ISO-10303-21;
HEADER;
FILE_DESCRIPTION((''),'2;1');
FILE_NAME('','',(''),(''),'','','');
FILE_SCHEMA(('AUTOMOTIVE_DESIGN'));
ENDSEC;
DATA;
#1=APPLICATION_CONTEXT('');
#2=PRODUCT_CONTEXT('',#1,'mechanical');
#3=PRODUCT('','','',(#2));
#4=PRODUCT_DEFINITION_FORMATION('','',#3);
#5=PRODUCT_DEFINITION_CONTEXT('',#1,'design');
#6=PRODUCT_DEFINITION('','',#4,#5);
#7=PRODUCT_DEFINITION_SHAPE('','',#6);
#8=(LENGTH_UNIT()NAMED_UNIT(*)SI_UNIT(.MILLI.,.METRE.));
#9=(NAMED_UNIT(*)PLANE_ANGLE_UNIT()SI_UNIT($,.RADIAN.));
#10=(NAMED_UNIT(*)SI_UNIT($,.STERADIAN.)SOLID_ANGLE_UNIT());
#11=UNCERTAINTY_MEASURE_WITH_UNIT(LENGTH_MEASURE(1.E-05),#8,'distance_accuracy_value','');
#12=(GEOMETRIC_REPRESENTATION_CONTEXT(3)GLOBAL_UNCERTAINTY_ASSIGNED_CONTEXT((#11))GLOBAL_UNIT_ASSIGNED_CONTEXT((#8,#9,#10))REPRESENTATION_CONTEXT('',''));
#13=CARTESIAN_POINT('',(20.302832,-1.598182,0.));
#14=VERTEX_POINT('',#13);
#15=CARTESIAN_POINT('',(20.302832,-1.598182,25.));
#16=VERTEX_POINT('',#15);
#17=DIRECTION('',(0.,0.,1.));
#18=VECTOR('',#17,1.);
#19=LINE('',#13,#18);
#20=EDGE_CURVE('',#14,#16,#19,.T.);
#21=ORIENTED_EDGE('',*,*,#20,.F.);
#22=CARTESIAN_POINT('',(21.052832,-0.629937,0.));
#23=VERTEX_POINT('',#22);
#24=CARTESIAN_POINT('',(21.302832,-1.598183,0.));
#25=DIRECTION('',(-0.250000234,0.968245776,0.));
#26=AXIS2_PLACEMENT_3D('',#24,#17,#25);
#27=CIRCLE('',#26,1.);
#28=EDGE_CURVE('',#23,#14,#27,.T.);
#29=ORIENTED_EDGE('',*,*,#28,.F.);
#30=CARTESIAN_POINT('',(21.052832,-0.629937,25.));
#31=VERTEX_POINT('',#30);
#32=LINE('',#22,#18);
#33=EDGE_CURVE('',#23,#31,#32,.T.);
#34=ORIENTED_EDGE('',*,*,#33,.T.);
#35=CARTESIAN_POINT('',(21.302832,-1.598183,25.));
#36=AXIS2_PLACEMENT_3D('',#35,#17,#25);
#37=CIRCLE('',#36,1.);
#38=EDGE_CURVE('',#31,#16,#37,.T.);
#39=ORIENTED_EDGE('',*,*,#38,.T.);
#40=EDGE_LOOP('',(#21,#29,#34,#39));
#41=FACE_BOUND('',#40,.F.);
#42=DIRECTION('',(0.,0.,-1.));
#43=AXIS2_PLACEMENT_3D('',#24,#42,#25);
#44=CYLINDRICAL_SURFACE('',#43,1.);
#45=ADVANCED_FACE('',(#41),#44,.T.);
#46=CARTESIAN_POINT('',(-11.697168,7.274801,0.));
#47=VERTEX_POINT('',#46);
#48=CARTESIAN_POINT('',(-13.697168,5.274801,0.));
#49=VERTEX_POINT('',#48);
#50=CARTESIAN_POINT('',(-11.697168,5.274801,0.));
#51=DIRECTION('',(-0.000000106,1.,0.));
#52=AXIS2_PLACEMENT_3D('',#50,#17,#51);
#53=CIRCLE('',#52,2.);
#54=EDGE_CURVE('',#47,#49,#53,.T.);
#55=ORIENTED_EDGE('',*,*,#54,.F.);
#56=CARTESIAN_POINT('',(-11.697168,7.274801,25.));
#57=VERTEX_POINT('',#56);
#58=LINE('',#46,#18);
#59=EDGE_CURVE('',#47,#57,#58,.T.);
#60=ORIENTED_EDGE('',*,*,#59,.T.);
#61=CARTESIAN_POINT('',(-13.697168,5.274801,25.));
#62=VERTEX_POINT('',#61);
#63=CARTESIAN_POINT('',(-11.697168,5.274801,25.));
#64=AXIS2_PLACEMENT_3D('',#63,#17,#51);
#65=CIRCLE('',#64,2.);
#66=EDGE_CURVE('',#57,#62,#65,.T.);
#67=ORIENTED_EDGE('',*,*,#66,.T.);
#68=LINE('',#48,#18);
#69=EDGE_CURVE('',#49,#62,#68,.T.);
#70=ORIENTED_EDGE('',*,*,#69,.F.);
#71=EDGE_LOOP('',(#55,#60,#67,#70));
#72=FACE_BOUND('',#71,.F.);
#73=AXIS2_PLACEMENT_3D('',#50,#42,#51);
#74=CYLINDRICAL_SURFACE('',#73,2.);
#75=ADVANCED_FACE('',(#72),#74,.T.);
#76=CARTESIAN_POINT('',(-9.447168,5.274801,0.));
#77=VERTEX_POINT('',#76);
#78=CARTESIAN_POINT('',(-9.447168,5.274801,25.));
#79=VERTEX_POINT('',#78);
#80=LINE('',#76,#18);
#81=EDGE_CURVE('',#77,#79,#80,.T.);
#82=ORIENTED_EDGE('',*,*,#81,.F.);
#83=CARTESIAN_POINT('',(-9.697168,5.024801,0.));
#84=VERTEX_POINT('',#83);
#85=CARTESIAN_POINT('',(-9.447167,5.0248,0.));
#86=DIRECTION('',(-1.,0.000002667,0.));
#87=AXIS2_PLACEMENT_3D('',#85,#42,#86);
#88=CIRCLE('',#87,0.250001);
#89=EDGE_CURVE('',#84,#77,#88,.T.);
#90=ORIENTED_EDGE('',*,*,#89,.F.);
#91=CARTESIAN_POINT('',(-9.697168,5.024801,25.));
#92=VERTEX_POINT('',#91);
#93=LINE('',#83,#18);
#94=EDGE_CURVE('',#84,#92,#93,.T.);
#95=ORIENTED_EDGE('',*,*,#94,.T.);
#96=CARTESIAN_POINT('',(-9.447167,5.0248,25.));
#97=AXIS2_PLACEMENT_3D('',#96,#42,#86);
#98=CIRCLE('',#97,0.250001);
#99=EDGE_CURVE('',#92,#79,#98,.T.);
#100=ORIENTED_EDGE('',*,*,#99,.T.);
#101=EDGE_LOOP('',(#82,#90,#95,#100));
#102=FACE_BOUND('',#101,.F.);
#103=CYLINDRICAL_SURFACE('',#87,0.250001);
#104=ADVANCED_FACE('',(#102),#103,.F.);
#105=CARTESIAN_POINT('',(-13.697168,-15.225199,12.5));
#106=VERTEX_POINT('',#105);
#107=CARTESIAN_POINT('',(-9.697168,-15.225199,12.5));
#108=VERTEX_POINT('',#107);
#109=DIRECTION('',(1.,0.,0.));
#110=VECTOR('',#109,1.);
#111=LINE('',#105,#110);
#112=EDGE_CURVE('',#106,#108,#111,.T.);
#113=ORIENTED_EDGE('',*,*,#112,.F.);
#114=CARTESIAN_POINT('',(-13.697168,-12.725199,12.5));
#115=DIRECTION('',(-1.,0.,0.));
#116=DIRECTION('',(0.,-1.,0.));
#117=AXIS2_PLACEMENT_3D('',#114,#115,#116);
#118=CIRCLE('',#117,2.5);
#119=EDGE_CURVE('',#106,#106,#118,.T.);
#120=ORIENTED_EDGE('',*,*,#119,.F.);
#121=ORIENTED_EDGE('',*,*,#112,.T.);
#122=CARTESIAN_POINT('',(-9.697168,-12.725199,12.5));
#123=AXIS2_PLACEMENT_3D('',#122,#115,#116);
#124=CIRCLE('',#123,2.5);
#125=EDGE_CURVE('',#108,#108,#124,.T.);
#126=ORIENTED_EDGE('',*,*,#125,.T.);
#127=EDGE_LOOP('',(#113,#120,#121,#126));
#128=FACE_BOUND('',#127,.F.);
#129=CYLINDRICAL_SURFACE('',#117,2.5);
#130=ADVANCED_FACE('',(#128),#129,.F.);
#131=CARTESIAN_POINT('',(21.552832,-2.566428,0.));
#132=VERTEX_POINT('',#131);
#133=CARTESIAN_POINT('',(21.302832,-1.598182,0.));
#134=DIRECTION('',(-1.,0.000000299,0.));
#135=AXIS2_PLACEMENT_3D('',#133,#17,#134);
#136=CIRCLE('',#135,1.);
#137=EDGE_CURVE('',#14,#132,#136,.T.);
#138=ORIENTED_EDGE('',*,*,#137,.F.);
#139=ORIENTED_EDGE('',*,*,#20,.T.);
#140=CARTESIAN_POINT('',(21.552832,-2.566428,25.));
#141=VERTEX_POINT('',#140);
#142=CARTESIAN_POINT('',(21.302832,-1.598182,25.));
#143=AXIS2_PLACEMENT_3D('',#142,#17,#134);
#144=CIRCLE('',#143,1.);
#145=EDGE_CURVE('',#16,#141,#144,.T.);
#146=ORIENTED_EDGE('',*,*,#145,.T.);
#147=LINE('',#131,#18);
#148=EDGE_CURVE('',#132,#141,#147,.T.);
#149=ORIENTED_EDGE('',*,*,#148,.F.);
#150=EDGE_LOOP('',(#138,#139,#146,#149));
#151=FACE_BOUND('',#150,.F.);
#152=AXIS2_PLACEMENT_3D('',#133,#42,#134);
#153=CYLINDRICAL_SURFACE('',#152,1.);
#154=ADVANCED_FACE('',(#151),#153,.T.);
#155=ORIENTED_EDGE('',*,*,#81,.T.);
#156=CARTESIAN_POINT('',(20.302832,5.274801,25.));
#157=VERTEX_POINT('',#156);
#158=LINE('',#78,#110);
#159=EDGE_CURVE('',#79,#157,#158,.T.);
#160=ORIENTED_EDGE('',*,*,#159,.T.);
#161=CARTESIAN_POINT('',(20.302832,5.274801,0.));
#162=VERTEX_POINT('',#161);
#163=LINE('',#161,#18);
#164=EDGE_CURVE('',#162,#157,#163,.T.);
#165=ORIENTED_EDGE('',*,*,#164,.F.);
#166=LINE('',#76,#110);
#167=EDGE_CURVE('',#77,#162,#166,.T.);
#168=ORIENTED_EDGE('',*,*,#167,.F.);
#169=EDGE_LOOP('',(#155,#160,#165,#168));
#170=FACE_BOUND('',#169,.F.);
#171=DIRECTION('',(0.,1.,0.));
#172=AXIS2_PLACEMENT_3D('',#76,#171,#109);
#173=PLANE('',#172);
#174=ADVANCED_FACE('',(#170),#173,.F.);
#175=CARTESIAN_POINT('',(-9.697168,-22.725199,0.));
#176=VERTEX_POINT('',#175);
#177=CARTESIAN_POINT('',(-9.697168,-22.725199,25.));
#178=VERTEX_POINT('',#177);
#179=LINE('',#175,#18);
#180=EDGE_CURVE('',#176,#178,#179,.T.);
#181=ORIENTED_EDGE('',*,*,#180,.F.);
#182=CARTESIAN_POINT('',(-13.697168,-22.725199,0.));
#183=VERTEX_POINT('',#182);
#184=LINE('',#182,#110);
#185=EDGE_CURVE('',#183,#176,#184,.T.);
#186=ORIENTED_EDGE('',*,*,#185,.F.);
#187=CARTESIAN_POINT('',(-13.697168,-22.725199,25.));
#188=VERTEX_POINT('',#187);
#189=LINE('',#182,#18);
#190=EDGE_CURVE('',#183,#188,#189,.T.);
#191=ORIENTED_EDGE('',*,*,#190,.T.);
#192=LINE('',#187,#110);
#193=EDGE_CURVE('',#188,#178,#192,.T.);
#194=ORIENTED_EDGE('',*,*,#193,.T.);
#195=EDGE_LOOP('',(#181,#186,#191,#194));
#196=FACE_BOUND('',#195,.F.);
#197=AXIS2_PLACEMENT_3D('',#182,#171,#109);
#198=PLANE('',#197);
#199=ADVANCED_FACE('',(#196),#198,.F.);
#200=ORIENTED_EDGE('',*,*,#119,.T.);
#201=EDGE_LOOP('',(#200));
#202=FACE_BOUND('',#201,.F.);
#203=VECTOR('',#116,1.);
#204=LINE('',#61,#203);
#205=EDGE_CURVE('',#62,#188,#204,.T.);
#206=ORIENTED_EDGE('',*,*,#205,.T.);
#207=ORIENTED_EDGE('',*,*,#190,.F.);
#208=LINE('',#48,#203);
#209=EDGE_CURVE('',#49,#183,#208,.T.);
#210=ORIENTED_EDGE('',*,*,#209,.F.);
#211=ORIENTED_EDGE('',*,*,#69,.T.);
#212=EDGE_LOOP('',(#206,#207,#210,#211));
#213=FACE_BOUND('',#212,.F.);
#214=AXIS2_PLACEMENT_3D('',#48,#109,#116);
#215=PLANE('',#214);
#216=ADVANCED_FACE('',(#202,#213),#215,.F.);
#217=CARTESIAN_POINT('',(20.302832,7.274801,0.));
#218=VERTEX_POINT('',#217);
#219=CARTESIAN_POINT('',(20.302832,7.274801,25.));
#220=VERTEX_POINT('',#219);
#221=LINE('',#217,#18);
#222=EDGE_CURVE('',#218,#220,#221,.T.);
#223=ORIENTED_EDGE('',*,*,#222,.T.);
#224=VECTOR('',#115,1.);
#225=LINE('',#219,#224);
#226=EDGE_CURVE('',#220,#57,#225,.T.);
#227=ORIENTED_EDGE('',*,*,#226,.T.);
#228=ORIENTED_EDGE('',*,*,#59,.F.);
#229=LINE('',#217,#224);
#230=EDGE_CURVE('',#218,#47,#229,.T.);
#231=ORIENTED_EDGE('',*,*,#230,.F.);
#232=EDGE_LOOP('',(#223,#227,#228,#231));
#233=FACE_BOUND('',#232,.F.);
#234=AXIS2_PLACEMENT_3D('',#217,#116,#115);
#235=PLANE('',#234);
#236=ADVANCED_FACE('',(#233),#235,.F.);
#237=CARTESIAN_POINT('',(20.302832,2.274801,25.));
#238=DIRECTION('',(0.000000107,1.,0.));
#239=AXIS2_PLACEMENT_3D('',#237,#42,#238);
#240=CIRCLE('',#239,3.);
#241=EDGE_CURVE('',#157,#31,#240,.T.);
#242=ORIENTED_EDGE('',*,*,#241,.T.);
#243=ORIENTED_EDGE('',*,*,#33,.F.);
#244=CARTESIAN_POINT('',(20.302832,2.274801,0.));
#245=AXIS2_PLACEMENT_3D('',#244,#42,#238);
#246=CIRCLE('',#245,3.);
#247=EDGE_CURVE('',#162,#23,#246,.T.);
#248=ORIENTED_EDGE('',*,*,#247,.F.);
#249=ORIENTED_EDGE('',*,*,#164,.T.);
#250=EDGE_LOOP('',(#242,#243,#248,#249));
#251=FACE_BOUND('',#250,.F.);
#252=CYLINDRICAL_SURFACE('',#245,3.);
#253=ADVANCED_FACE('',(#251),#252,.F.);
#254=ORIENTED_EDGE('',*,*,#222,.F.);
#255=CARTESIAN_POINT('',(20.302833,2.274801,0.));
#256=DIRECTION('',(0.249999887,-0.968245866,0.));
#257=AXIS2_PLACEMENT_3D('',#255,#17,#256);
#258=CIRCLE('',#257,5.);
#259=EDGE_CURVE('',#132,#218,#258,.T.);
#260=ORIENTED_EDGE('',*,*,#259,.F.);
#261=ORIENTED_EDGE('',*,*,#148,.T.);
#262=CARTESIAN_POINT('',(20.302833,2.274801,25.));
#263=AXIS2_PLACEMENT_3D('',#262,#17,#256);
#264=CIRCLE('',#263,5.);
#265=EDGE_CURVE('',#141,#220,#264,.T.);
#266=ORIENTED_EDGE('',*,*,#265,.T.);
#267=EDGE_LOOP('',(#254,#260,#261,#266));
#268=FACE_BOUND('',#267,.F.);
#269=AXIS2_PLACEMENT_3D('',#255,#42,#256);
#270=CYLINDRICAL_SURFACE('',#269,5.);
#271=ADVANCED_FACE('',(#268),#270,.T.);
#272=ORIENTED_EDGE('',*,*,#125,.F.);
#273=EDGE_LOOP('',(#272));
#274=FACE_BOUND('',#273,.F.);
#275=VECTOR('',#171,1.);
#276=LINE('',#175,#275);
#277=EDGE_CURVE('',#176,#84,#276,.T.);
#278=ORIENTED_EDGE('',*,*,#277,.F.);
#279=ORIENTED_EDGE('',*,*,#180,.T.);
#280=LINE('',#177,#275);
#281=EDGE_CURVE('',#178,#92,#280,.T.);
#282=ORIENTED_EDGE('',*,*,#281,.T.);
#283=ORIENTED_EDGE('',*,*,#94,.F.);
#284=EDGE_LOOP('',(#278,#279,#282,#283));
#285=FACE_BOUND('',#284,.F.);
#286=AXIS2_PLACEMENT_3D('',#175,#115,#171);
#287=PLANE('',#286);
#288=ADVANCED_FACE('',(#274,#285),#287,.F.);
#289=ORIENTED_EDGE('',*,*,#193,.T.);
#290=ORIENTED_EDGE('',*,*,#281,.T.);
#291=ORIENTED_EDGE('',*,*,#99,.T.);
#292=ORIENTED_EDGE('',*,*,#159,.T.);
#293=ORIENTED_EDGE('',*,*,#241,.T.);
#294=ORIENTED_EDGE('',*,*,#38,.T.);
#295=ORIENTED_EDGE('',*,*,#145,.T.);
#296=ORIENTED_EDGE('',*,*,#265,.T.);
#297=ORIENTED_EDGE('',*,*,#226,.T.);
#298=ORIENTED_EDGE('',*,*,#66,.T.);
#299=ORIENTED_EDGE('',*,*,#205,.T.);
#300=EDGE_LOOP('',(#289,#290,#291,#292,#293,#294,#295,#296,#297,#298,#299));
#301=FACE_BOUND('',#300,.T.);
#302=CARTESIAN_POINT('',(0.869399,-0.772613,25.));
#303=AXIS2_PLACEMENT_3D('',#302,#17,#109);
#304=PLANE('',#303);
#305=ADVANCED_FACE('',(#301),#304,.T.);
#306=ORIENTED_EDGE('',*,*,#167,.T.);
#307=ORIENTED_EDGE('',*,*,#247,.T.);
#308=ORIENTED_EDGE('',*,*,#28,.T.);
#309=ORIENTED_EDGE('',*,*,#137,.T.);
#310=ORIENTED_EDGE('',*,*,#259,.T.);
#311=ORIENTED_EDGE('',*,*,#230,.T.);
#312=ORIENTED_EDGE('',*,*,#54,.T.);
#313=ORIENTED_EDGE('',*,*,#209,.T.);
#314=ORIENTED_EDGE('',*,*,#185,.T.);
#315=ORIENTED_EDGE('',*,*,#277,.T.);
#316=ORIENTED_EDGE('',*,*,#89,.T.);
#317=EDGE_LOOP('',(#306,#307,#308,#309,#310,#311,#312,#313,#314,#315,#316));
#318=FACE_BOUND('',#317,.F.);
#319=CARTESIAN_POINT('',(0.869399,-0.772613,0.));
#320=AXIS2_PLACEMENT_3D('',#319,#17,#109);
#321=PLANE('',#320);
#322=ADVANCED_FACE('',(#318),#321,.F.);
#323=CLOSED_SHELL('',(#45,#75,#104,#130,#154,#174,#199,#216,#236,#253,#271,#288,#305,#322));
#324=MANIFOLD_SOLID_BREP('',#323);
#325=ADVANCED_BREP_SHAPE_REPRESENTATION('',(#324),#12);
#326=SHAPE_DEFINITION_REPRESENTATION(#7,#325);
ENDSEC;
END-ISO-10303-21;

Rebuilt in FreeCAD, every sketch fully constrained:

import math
import FreeCAD as App
import Part
import Sketcher

V = App.Vector

doc = App.newDocument("Part")
body = doc.addObject("PartDesign::Body", "Body")

# Sketch on XY plane
sketch1 = body.newObject("Sketcher::SketchObject", "Sketch")
sketch1.AttachmentSupport = (doc.getObject("XY_Plane"), [""])
sketch1.MapMode = "FlatFace"
sketch1.addGeometry([
    Part.ArcOfCircle(Part.Circle(V(-11.7, 5.27, 0), V(0, 0, 1), 2), math.radians(90), math.radians(180)),  # 0
    Part.LineSegment(V(-13.7, 5.27, 0), V(-13.7, -22.73, 0)),  # 1
    Part.LineSegment(V(-13.7, -22.73, 0), V(-9.7, -22.73, 0)),  # 2
    Part.LineSegment(V(-9.7, -22.73, 0), V(-9.7, 5.02, 0)),  # 3
    Part.ArcOfCircle(Part.Circle(V(-9.45, 5.02, 0), V(0, 0, 1), 0.25), math.radians(90), math.radians(180)),  # 4
    Part.LineSegment(V(-9.45, 5.27, 0), V(20.3, 5.27, 0)),  # 5
    Part.ArcOfCircle(Part.Circle(V(20.3, 2.27, 0), V(0, 0, 1), 3), math.radians(-76), math.radians(90)),  # 6
    Part.ArcOfCircle(Part.Circle(V(21.3, -1.6, 0), V(0, 0, 1), 1), math.radians(104), math.radians(180)),  # 7
    Part.ArcOfCircle(Part.Circle(V(21.3, -1.6, 0), V(0, 0, 1), 1), math.radians(180), math.radians(284)),  # 8
    Part.ArcOfCircle(Part.Circle(V(20.3, 2.27, 0), V(0, 0, 1), 5), math.radians(-76), math.radians(90)),  # 9
    Part.LineSegment(V(20.3, 7.27, 0), V(-11.7, 7.27, 0)),  # 10
], False)
sketch1.addConstraint([
    Sketcher.Constraint("Tangent", 0, 2, 1, 1),
    Sketcher.Constraint("Coincident", 1, 2, 2, 1),
    Sketcher.Constraint("Coincident", 2, 2, 3, 1),
    Sketcher.Constraint("Coincident", 3, 2, 4, 2),
    Sketcher.Constraint("Coincident", 4, 1, 5, 1),
    Sketcher.Constraint("Tangent", 5, 2, 6, 2),
    Sketcher.Constraint("Tangent", 6, 1, 7, 1),
    Sketcher.Constraint("Tangent", 7, 2, 8, 1),
    Sketcher.Constraint("Tangent", 8, 2, 9, 1),
    Sketcher.Constraint("Tangent", 9, 2, 10, 1),
    Sketcher.Constraint("Tangent", 10, 2, 0, 1),
    Sketcher.Constraint("Vertical", 1),
    Sketcher.Constraint("Horizontal", 2),
    Sketcher.Constraint("Vertical", 3),
    Sketcher.Constraint("Horizontal", 5),
    Sketcher.Constraint("Horizontal", 10),
    Sketcher.Constraint("Coincident", 9, 3, 6, 3),
    Sketcher.Constraint("Equal", 7, 8),
    Sketcher.Constraint("Horizontal", 4, 3, 3, 2),
    Sketcher.Constraint("Horizontal", 0, 2, 4, 1),
    Sketcher.Constraint("Horizontal", 8, 3, 7, 2),
    Sketcher.Constraint("Vertical", 5, 2, 7, 2),
    Sketcher.Constraint("Radius", 0, 2.0),
    Sketcher.Constraint("Radius", 6, 3.0),
    Sketcher.Constraint("DistanceX", 2, 1, 2, 2, 4.0),
    Sketcher.Constraint("DistanceX", 10, 2, 10, 1, 32.0),
    Sketcher.Constraint("DistanceY", 1, 2, 1, 1, 28.0),
    Sketcher.Constraint("Radius", 4, 0.250001),
    Sketcher.Constraint("DistanceX", 5, 1, 5, 2, 29.75),
    Sketcher.Constraint("DistanceY", -1, 1, 0, 3, 5.274801),
    Sketcher.Constraint("DistanceX", -1, 1, 6, 3, 20.302832),
])
pad1 = body.newObject("PartDesign::Pad", "Pad")
pad1.Profile = sketch1
pad1.Length = 25

# Sketch on YZ plane
sketch2 = body.newObject("Sketcher::SketchObject", "Sketch001")
sketch2.AttachmentSupport = (doc.getObject("YZ_Plane"), [""])
sketch2.MapMode = "FlatFace"
sketch2.AttachmentOffset = App.Placement(V(0, 0, -13.697168), App.Rotation())
sketch2.addGeometry(Part.Circle(V(-12.7, 12.5, 0), V(0, 0, 1), 2.5), False)
sketch2.addConstraint([
    Sketcher.Constraint("Diameter", 0, 5.0),
    Sketcher.Constraint("DistanceY", -1, 1, 0, 3, 12.5),
    Sketcher.Constraint("DistanceX", 0, 3, -1, 1, 12.725199),
])
pocket1 = body.newObject("PartDesign::Pocket", "Pocket")
pocket1.Profile = sketch2
pocket1.Type = "ThroughAll"
pocket1.Reversed = True

doc.recompute()
